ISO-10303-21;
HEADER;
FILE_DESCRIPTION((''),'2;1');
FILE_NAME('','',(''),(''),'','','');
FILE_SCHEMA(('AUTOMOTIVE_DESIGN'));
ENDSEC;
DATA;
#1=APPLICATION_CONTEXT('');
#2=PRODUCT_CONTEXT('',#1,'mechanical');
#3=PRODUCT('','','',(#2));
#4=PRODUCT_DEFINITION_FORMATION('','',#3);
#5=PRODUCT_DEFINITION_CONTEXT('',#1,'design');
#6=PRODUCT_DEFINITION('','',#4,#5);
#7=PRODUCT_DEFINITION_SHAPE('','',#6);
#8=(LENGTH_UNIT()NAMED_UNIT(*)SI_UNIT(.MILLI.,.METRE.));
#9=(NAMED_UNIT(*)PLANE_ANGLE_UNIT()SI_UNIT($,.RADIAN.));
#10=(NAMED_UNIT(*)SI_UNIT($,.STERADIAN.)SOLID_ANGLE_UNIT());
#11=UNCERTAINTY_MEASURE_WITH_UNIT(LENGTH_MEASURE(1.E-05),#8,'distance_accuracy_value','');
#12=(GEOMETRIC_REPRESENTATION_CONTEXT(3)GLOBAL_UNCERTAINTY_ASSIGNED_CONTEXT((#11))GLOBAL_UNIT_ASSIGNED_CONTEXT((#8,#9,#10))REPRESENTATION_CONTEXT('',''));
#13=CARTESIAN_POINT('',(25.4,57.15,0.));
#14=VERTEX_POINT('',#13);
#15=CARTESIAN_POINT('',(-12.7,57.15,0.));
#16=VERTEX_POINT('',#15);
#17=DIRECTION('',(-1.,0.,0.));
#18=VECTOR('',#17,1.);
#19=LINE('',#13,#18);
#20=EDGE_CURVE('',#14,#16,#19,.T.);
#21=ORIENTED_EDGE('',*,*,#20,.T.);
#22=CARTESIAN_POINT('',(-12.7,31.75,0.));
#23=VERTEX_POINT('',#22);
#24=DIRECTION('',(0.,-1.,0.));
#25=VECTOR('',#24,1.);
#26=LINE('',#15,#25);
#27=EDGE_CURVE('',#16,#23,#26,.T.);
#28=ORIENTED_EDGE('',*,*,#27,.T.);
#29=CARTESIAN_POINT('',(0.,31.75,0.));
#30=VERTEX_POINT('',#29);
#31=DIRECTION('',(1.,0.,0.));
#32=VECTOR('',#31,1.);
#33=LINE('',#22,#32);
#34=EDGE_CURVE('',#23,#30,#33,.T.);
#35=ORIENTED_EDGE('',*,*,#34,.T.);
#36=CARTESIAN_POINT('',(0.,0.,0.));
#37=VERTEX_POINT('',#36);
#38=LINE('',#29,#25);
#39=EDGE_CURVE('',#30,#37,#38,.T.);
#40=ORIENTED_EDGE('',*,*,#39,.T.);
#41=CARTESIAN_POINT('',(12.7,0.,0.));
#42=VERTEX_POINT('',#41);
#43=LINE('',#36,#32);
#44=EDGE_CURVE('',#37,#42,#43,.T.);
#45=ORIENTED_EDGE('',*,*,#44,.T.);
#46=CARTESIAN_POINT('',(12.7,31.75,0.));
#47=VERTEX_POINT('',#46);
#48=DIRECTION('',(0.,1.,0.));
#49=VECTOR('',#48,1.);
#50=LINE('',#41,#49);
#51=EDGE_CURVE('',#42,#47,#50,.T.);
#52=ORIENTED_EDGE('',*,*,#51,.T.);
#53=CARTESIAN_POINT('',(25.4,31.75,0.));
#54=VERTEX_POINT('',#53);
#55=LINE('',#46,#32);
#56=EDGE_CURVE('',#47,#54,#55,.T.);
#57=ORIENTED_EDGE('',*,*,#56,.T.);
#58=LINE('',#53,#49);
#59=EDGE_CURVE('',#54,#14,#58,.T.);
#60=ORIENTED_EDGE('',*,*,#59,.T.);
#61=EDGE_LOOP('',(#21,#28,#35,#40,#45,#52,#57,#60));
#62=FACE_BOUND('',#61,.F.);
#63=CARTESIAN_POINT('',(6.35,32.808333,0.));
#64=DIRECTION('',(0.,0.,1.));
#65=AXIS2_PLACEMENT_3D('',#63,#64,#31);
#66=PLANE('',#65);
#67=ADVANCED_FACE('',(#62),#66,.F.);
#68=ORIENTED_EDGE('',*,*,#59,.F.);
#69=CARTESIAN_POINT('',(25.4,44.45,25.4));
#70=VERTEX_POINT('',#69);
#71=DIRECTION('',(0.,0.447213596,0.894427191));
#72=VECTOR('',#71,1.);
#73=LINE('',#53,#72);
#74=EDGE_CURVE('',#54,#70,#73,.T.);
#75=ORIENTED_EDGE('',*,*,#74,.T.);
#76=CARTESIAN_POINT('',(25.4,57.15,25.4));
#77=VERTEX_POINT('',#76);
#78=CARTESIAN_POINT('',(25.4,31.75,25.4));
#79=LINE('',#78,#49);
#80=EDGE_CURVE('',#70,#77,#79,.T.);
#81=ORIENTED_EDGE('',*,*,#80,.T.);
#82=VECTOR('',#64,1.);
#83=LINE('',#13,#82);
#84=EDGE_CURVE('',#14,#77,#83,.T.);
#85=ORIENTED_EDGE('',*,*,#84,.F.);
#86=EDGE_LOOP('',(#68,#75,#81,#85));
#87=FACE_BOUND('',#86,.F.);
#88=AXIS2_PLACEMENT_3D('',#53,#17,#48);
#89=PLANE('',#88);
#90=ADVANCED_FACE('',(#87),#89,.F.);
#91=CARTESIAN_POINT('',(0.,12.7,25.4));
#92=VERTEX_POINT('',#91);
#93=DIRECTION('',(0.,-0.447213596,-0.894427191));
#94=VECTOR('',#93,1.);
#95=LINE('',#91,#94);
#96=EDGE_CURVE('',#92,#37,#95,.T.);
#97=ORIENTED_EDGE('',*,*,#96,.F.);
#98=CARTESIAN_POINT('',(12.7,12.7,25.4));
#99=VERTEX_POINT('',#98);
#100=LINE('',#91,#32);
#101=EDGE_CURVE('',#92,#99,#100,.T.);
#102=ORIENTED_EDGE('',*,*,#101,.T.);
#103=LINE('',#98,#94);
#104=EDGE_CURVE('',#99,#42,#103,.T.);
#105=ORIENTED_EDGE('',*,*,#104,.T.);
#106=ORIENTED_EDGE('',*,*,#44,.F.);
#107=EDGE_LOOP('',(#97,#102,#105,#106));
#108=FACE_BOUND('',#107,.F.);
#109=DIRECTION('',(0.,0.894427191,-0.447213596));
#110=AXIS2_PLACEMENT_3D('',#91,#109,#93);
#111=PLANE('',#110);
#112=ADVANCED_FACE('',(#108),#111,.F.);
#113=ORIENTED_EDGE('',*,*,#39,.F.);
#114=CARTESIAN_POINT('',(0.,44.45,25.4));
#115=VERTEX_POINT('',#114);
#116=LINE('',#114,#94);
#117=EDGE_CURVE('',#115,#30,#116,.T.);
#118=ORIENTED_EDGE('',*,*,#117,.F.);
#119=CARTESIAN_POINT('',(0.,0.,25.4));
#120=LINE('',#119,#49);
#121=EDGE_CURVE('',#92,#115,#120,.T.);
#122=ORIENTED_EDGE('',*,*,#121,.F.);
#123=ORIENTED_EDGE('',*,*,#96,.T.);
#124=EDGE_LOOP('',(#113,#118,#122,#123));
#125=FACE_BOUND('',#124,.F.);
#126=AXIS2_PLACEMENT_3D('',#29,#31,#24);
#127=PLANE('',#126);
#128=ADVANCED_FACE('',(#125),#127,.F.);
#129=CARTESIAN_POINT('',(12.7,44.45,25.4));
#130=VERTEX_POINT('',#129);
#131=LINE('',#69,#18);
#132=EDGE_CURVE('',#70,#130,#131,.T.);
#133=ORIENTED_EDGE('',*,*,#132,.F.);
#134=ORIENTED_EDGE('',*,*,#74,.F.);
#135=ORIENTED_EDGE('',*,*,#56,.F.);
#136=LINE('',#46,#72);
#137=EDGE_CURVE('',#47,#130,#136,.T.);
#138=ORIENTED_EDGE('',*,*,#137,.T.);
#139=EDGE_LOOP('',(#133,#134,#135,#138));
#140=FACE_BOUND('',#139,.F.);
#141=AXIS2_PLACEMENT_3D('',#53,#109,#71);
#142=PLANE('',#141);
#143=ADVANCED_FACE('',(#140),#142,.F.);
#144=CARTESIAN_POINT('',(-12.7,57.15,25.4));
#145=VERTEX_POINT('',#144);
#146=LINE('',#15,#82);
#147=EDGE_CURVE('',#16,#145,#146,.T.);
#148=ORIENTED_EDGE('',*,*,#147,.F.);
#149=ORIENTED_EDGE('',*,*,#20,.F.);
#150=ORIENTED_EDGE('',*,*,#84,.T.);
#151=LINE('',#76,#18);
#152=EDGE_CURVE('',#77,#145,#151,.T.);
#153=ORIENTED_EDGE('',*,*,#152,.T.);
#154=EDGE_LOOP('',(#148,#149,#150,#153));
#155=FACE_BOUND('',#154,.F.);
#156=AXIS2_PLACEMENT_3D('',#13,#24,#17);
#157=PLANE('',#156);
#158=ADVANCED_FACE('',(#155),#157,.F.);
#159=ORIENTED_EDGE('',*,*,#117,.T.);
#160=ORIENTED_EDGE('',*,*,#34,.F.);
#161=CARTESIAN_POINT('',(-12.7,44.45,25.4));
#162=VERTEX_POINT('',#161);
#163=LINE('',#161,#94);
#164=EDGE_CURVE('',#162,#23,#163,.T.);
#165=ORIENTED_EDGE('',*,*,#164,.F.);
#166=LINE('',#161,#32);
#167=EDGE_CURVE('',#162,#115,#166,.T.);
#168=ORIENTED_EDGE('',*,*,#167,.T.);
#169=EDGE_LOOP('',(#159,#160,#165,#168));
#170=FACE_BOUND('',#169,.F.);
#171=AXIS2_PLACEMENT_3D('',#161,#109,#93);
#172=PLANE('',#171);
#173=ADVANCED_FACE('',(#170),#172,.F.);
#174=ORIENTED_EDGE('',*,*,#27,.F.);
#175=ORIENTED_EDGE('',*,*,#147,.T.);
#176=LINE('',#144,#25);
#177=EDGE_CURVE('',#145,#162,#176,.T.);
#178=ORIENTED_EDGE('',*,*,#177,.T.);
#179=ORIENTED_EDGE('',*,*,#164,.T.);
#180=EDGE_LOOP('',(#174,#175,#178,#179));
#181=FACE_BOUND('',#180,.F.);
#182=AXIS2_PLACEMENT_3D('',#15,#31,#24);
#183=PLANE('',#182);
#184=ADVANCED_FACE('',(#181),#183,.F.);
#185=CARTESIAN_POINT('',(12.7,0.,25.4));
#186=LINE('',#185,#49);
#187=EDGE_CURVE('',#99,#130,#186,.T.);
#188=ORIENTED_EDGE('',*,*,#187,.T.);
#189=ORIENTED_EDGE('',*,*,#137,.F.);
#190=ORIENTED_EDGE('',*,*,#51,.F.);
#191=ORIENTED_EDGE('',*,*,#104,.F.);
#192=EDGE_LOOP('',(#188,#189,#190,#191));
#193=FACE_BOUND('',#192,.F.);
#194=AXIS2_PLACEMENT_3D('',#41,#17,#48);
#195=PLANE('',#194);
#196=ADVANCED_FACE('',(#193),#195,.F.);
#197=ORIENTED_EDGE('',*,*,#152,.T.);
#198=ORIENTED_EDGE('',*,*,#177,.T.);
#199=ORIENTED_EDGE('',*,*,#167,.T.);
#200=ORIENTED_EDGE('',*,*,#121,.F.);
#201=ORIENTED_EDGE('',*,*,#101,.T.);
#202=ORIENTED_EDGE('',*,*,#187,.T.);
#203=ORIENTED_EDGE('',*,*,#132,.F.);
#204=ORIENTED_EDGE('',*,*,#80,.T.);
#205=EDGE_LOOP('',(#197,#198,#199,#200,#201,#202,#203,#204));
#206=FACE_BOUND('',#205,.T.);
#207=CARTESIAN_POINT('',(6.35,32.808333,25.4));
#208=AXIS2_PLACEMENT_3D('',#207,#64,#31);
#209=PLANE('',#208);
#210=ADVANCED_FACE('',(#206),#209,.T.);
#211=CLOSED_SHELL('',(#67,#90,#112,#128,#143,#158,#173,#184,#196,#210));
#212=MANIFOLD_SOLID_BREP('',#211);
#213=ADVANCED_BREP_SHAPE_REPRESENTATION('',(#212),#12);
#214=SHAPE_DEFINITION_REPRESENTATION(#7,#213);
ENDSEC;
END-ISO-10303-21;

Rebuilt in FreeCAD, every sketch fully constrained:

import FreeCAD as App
import Part
import Sketcher
from FreeCAD import Vector
Q = App.Units.Quantity

doc = App.newDocument("Part")
body = doc.addObject("PartDesign::Body", "Body")

sketch1 = body.newObject("Sketcher::SketchObject", "Sketch")
sketch1.AttachmentSupport = (doc.getObject("XY_Plane"), [""])
sketch1.MapMode = "FlatFace"
sketch1.addGeometry([
    Part.LineSegment(Vector(-13, 32, 0), Vector(0, 32, 0)),
    Part.LineSegment(Vector(0, 32, 0), Vector(0, 0, 0)),
    Part.LineSegment(Vector(0, 0, 0), Vector(13, 0, 0)),
    Part.LineSegment(Vector(13, 0, 0), Vector(13, 32, 0)),
    Part.LineSegment(Vector(13, 32, 0), Vector(25, 32, 0)),
    Part.LineSegment(Vector(25, 32, 0), Vector(25, 57, 0)),
    Part.LineSegment(Vector(25, 57, 0), Vector(-13, 57, 0)),
    Part.LineSegment(Vector(-13, 57, 0), Vector(-13, 32, 0)),
], False)
sketch1.addConstraint([
    Sketcher.Constraint("Coincident", 0, 2, 1, 1),
    Sketcher.Constraint("Coincident", 1, 2, 2, 1),
    Sketcher.Constraint("Coincident", 2, 2, 3, 1),
    Sketcher.Constraint("Coincident", 3, 2, 4, 1),
    Sketcher.Constraint("Coincident", 4, 2, 5, 1),
    Sketcher.Constraint("Coincident", 5, 2, 6, 1),
    Sketcher.Constraint("Coincident", 6, 2, 7, 1),
    Sketcher.Constraint("Coincident", 7, 2, 0, 1),
    Sketcher.Constraint("Horizontal", 0),
    Sketcher.Constraint("Vertical", 1),
    Sketcher.Constraint("Horizontal", 2),
    Sketcher.Constraint("Vertical", 3),
    Sketcher.Constraint("Horizontal", 4),
    Sketcher.Constraint("Vertical", 5),
    Sketcher.Constraint("Horizontal", 6),
    Sketcher.Constraint("Vertical", 7),
    Sketcher.Constraint("Coincident", 1, 2, -1, 1),
    Sketcher.Constraint("Symmetric", 3, 2, 7, 2, -2),
    Sketcher.Constraint("Equal", 2, 4),
    Sketcher.Constraint("DistanceY", 5, 1, 5, 2, Q("1 in")),
    Sketcher.Constraint("DistanceX", 0, 1, 0, 2, Q("0.5 in")),
    Sketcher.Constraint("DistanceY", 1, 2, 1, 1, Q("1.25 in")),
])
pad1 = body.newObject("PartDesign::Pad", "Pad")
pad1.Profile = sketch1
pad1.Length = Q("1 in")

sketch2 = body.newObject("Sketcher::SketchObject", "Sketch001")
sketch2.AttachmentSupport = (doc.getObject("YZ_Plane"), [""])
sketch2.MapMode = "FlatFace"
sketch2.AttachmentOffset = App.Placement(Vector(0, 0, -0.5 * 25.4), App.Rotation())
sketch2.addGeometry([
    Part.LineSegment(Vector(32, 25, 0), Vector(44, 25, 0)),
    Part.LineSegment(Vector(44, 25, 0), Vector(32, 0, 0)),
    Part.LineSegment(Vector(32, 0, 0), Vector(32, 25, 0)),
], False)
sketch2.addConstraint([
    Sketcher.Constraint("Coincident", 0, 2, 1, 1),
    Sketcher.Constraint("Coincident", 1, 2, 2, 1),
    Sketcher.Constraint("Coincident", 2, 2, 0, 1),
    Sketcher.Constraint("Horizontal", 0),
    Sketcher.Constraint("Vertical", 2),
    Sketcher.Constraint("PointOnObject", 1, 2, -1),
    Sketcher.Constraint("DistanceY", 2, 1, 2, 2, Q("1 in")),
    Sketcher.Constraint("DistanceX", 0, 1, 0, 2, Q("0.5 in")),
    Sketcher.Constraint("DistanceX", -1, 1, 0, 2, Q("1.75 in")),
])
pocket1 = body.newObject("PartDesign::Pocket", "Pocket")
pocket1.Profile = sketch2
pocket1.Length = Q("0.5 in")
pocket1.Reversed = True

sketch3 = body.newObject("Sketcher::SketchObject", "Sketch002")
sketch3.AttachmentSupport = (doc.getObject("YZ_Plane"), [""])
sketch3.MapMode = "FlatFace"
sketch3.AttachmentOffset = App.Placement(Vector(0, 0, 1 * 25.4), App.Rotation())
sketch3.addGeometry([
    Part.LineSegment(Vector(32, 0, 0), Vector(44, 25, 0)),
    Part.LineSegment(Vector(44, 25, 0), Vector(32, 25, 0)),
    Part.LineSegment(Vector(32, 25, 0), Vector(32, 0, 0)),
], False)
sketch3.addConstraint([
    Sketcher.Constraint("Coincident", 0, 2, 1, 1),
    Sketcher.Constraint("Coincident", 1, 2, 2, 1),
    Sketcher.Constraint("Coincident", 2, 2, 0, 1),
    Sketcher.Constraint("Horizontal", 1),
    Sketcher.Constraint("Vertical", 2),
    Sketcher.Constraint("PointOnObject", 2, 2, -1),
    Sketcher.Constraint("DistanceY", 2, 2, 2, 1, Q("1 in")),
    Sketcher.Constraint("DistanceX", 1, 2, 1, 1, Q("0.5 in")),
    Sketcher.Constraint("DistanceX", -1, 1, 0, 2, Q("1.75 in")),
])
pocket2 = body.newObject("PartDesign::Pocket", "Pocket001")
pocket2.Profile = sketch3
pocket2.Length = Q("0.5 in")

sketch4 = body.newObject("Sketcher::SketchObject", "Sketch003")
sketch4.AttachmentSupport = (doc.getObject("YZ_Plane"), [""])
sketch4.MapMode = "FlatFace"
sketch4.addGeometry([
    Part.LineSegment(Vector(0, 25, 0), Vector(13, 25, 0)),
    Part.LineSegment(Vector(13, 25, 0), Vector(0, 0, 0)),
    Part.LineSegment(Vector(0, 0, 0), Vector(0, 25, 0)),
], False)
sketch4.addConstraint([
    Sketcher.Constraint("Coincident", 0, 2, 1, 1),
    Sketcher.Constraint("Coincident", 1, 2, 2, 1),
    Sketcher.Constraint("Coincident", 2, 2, 0, 1),
    Sketcher.Constraint("Horizontal", 0),
    Sketcher.Constraint("Vertical", 2),
    Sketcher.Constraint("Coincident", 1, 2, -1, 1),
    Sketcher.Constraint("DistanceY", 2, 1, 2, 2, Q("1 in")),
    Sketcher.Constraint("DistanceX", 0, 1, 0, 2, Q("0.5 in")),
])
pocket3 = body.newObject("PartDesign::Pocket", "Pocket002")
pocket3.Profile = sketch4
pocket3.Length = Q("0.5 in")
pocket3.Reversed = True

doc.recompute()
